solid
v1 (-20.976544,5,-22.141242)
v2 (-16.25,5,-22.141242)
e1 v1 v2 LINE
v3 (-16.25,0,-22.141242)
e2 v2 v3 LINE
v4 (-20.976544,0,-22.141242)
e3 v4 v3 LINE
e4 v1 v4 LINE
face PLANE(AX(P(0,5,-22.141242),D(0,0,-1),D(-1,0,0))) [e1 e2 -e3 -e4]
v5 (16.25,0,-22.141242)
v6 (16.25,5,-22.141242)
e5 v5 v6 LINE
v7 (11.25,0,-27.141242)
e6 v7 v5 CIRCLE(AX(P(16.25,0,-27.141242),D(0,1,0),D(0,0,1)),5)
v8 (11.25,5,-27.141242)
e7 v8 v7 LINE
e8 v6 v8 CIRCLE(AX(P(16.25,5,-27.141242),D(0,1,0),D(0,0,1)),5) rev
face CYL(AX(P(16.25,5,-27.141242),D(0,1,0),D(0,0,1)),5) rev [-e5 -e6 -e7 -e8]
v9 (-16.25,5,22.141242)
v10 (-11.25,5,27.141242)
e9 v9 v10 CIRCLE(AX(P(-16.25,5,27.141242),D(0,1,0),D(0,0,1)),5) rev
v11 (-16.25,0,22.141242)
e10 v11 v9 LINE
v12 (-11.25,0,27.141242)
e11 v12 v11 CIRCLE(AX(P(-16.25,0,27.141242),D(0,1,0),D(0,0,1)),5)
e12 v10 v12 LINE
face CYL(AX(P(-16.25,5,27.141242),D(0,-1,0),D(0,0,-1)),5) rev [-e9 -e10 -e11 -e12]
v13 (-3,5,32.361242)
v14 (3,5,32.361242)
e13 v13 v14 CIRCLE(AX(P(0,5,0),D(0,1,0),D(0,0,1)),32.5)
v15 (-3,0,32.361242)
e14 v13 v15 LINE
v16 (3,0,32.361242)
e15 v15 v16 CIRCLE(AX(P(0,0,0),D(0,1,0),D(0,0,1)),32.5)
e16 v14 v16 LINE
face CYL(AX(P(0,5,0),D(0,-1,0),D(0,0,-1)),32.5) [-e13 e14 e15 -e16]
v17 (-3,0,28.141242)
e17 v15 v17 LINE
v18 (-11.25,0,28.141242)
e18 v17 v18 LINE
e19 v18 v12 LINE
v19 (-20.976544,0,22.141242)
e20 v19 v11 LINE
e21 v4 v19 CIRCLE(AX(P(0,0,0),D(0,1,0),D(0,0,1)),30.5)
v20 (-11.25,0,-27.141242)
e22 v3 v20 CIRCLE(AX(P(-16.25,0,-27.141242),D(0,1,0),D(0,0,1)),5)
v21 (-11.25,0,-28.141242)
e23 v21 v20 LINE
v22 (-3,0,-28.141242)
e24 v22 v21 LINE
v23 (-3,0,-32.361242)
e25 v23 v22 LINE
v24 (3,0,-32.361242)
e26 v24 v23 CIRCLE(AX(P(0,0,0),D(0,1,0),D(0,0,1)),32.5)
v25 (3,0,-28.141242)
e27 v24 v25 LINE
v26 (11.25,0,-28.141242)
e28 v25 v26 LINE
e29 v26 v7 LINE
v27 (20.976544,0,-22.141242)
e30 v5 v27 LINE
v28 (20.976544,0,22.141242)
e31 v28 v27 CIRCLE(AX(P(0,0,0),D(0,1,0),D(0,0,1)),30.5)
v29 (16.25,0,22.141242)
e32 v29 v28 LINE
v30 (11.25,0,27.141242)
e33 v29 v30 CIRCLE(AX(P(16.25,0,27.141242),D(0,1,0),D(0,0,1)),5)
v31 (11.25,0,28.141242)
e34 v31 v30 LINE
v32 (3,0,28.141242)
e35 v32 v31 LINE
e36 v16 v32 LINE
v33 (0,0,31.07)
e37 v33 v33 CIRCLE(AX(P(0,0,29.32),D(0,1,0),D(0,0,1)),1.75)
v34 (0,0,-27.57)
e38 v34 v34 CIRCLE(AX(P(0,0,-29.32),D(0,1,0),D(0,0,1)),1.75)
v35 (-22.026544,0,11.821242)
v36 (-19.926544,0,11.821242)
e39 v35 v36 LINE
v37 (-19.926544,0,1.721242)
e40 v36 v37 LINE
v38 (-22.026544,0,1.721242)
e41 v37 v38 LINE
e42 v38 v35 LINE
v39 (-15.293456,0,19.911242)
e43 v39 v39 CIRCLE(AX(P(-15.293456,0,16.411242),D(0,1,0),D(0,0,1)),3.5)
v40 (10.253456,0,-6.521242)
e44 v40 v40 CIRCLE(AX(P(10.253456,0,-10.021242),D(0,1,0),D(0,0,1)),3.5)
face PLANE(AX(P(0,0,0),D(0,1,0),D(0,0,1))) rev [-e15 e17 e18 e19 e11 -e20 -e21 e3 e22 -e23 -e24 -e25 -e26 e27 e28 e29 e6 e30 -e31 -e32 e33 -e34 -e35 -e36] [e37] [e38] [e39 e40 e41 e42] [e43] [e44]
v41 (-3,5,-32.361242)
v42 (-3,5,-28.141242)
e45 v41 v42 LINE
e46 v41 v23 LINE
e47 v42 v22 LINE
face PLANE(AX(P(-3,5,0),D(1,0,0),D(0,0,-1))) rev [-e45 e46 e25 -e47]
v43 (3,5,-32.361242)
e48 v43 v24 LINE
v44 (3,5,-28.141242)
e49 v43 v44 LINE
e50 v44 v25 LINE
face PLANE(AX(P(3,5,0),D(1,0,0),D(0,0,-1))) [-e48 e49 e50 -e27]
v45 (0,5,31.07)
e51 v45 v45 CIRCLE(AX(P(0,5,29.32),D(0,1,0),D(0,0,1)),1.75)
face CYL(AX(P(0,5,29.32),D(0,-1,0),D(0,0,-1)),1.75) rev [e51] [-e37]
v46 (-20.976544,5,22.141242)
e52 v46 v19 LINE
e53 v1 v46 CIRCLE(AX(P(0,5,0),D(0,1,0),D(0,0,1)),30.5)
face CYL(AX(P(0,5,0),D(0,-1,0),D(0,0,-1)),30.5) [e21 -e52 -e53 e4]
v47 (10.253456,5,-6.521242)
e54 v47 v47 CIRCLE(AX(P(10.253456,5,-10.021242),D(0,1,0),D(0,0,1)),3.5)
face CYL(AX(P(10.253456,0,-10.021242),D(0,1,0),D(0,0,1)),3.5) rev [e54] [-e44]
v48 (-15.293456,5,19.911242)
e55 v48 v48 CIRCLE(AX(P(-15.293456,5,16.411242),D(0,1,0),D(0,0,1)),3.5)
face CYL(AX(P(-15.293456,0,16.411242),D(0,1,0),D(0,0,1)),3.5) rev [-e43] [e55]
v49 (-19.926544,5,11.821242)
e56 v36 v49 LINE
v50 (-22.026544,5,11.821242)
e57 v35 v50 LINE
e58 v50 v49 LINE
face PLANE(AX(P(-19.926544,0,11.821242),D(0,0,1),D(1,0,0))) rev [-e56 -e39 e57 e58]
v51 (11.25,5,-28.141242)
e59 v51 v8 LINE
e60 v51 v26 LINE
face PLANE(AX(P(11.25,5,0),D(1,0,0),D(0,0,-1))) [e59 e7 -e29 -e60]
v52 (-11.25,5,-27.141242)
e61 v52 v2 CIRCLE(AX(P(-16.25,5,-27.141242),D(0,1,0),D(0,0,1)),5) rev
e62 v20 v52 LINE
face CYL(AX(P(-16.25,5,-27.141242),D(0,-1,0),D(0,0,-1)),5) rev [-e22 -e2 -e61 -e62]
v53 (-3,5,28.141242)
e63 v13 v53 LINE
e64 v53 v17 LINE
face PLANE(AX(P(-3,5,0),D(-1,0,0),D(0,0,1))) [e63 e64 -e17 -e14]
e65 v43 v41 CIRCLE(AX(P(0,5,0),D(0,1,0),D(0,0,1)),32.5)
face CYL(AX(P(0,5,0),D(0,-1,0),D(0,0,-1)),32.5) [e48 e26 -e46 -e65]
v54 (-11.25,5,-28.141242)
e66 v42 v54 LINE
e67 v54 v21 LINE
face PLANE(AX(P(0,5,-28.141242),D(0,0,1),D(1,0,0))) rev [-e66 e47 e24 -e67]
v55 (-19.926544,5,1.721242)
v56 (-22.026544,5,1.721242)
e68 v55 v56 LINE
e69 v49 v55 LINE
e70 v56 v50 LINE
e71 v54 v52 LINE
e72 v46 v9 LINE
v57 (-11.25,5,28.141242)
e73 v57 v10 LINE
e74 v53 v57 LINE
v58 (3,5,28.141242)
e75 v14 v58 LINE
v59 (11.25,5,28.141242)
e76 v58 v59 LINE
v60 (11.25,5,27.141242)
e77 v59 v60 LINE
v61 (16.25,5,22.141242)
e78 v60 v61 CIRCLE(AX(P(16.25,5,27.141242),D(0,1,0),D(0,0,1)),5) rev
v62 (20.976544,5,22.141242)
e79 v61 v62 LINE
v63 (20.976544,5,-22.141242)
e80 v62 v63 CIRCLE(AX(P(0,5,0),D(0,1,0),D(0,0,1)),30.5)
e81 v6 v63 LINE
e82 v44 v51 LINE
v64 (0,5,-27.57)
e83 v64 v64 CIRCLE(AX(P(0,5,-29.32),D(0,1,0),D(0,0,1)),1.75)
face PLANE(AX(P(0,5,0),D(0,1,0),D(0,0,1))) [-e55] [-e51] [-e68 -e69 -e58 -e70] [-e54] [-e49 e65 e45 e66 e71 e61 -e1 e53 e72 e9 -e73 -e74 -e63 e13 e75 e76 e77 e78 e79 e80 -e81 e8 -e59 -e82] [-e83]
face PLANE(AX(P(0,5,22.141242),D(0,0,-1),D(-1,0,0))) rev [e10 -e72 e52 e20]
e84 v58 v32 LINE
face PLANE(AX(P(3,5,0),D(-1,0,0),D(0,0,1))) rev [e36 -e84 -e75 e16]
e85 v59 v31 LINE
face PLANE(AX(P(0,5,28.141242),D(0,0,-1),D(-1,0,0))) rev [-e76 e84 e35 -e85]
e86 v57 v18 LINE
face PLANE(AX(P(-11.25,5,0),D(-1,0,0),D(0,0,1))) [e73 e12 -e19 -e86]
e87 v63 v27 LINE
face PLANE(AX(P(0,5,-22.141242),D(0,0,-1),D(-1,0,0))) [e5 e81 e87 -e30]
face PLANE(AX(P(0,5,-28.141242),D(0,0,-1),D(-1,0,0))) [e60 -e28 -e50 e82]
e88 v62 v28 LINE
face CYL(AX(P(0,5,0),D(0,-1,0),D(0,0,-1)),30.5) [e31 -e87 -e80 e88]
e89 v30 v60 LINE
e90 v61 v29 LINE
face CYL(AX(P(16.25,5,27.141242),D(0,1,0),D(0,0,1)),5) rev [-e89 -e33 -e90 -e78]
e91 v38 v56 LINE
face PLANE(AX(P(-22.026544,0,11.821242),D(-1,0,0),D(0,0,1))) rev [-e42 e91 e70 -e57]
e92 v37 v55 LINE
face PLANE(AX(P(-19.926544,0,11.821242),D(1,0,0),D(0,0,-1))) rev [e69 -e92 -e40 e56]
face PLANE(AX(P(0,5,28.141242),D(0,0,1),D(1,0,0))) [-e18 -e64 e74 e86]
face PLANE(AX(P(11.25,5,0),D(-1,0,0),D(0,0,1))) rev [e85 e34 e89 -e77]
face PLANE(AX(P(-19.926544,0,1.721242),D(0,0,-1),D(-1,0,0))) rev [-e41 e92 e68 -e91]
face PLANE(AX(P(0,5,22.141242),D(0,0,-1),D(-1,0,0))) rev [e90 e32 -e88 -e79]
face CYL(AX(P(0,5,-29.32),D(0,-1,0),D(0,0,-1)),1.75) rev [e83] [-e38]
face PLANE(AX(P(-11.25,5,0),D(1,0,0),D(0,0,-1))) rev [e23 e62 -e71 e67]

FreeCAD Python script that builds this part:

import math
import FreeCAD as App
import Part
import Sketcher
from FreeCAD import Vector


def edges_at(feature, points):
    """Names of the edges that pass closest to the given points."""
    edges = feature.Shape.Edges
    near = lambda p: min(range(len(edges)), key=lambda i: edges[i].distToShape(Part.Vertex(*p))[0])
    return sorted({f"Edge{near(p) + 1}" for p in points})


def add_polygon(sketch, points):
    """Adds a closed chain of lines whose ends are joined by coincident constraints."""
    first, n = sketch.GeometryCount, len(points)
    for a, b in zip(points, points[1:] + points[:1]):
        sketch.addGeometry(Part.LineSegment(App.Vector(*a, 0), App.Vector(*b, 0)), False)
    for i in range(n):
        sketch.addConstraint(Sketcher.Constraint("Coincident", first + i, 2, first + (i + 1) % n, 1))

doc = App.newDocument("Part")
body = doc.addObject("PartDesign::Body", "Body")

sketch1 = doc.addObject("Sketcher::SketchObject", "Sketch")
body.addObject(sketch1)
sketch1.AttachmentSupport = (doc.XZ_Plane, [""])
sketch1.MapMode = "FlatFace"
sketch1.addGeometry([
    Part.LineSegment(Vector(3, -28.1, 0), Vector(3, -32.4, 0)),
    Part.ArcOfCircle(Part.Circle(Vector(0, 0, 0), Vector(0, 0, 1), 32.5), math.radians(-95.3), math.radians(-84.7)),
    Part.LineSegment(Vector(-3, -32.4, 0), Vector(-3, -28.1, 0)),
    Part.LineSegment(Vector(-3, -28.1, 0), Vector(-11.2, -28.1, 0)),
    Part.LineSegment(Vector(-11.2, -28.1, 0), Vector(-11.2, -22.1, 0)),
    Part.LineSegment(Vector(-11.2, -22.1, 0), Vector(-21, -22.1, 0)),
    Part.ArcOfCircle(Part.Circle(Vector(0, 0, 0), Vector(0, 0, 1), 30.5), math.radians(133), math.radians(227)),
    Part.LineSegment(Vector(-21, 22.1, 0), Vector(-11.2, 22.1, 0)),
    Part.LineSegment(Vector(-11.2, 22.1, 0), Vector(-11.2, 28.1, 0)),
    Part.LineSegment(Vector(-11.2, 28.1, 0), Vector(-3, 28.1, 0)),
    Part.LineSegment(Vector(-3, 28.1, 0), Vector(-3, 32.4, 0)),
    Part.ArcOfCircle(Part.Circle(Vector(0, 0, 0), Vector(0, 0, 1), 32.5), math.radians(84.7), math.radians(95.3)),
    Part.LineSegment(Vector(3, 32.4, 0), Vector(3, 28.1, 0)),
    Part.LineSegment(Vector(3, 28.1, 0), Vector(11.2, 28.1, 0)),
    Part.LineSegment(Vector(11.2, 28.1, 0), Vector(11.2, 22.1, 0)),
    Part.LineSegment(Vector(11.2, 22.1, 0), Vector(21, 22.1, 0)),
    Part.ArcOfCircle(Part.Circle(Vector(0, 0, 0), Vector(0, 0, 1), 30.5), math.radians(-47), math.radians(47)),
    Part.LineSegment(Vector(21, -22.1, 0), Vector(11.2, -22.1, 0)),
    Part.LineSegment(Vector(11.2, -22.1, 0), Vector(11.2, -28.1, 0)),
    Part.LineSegment(Vector(11.2, -28.1, 0), Vector(3, -28.1, 0)),
    Part.Circle(Vector(0, 29.3, 0), Vector(0, 0, 1), 1.8),
    Part.Circle(Vector(0, -29.3, 0), Vector(0, 0, 1), 1.8),
], False)
sketch1.addConstraint([
    Sketcher.Constraint("Coincident", 0, 2, 1, 2),
    Sketcher.Constraint("Coincident", 1, 1, 2, 1),
    Sketcher.Constraint("Coincident", 2, 2, 3, 1),
    Sketcher.Constraint("Coincident", 3, 2, 4, 1),
    Sketcher.Constraint("Coincident", 4, 2, 5, 1),
    Sketcher.Constraint("Coincident", 5, 2, 6, 2),
    Sketcher.Constraint("Coincident", 6, 1, 7, 1),
    Sketcher.Constraint("Coincident", 7, 2, 8, 1),
    Sketcher.Constraint("Coincident", 8, 2, 9, 1),
    Sketcher.Constraint("Coincident", 9, 2, 10, 1),
    Sketcher.Constraint("Coincident", 10, 2, 11, 2),
    Sketcher.Constraint("Coincident", 11, 1, 12, 1),
    Sketcher.Constraint("Coincident", 12, 2, 13, 1),
    Sketcher.Constraint("Coincident", 13, 2, 14, 1),
    Sketcher.Constraint("Coincident", 14, 2, 15, 1),
    Sketcher.Constraint("Coincident", 15, 2, 16, 2),
    Sketcher.Constraint("Coincident", 16, 1, 17, 1),
    Sketcher.Constraint("Coincident", 17, 2, 18, 1),
    Sketcher.Constraint("Coincident", 18, 2, 19, 1),
    Sketcher.Constraint("Coincident", 19, 2, 0, 1),
    Sketcher.Constraint("Vertical", 0),
    Sketcher.Constraint("Vertical", 2),
    Sketcher.Constraint("Horizontal", 3),
    Sketcher.Constraint("Vertical", 4),
    Sketcher.Constraint("Horizontal", 5),
    Sketcher.Constraint("Horizontal", 7),
    Sketcher.Constraint("Vertical", 8),
    Sketcher.Constraint("Horizontal", 9),
    Sketcher.Constraint("Vertical", 10),
    Sketcher.Constraint("Vertical", 12),
    Sketcher.Constraint("Horizontal", 13),
    Sketcher.Constraint("Vertical", 14),
    Sketcher.Constraint("Horizontal", 15),
    Sketcher.Constraint("Horizontal", 17),
    Sketcher.Constraint("Vertical", 18),
    Sketcher.Constraint("Horizontal", 19),
    Sketcher.Constraint("Coincident", 1, 3, -1, 1),
    Sketcher.Constraint("Coincident", 6, 3, -1, 1),
    Sketcher.Constraint("Coincident", 11, 3, -1, 1),
    Sketcher.Constraint("Coincident", 16, 3, -1, 1),
    Sketcher.Constraint("Equal", 1, 11),
    Sketcher.Constraint("Equal", 6, 16),
    Sketcher.Constraint("Equal", 20, 21),
    Sketcher.Constraint("Symmetric", 20, 3, 21, 3, -1, 1),
    Sketcher.Constraint("Symmetric", 2, 2, 12, 2, -1, 1),
    Sketcher.Constraint("Symmetric", 4, 2, 14, 2, -1, 1),
    Sketcher.Constraint("Symmetric", 7, 2, 17, 2, -1, 1),
    Sketcher.Constraint("Symmetric", 9, 2, 19, 2, -1, 1),
    Sketcher.Constraint("Symmetric", 9, 2, 12, 2, -2),
    Sketcher.Constraint("Symmetric", 7, 2, 14, 2, -2),
    Sketcher.Constraint("PointOnObject", 20, 3, -2),
    Sketcher.Constraint("Diameter", 20, 3.5),
    Sketcher.Constraint("Radius", 1, 32.5),
    Sketcher.Constraint("Radius", 6, 30.5),
    Sketcher.Constraint("DistanceY", 4, 1, 4, 2, 6.0),
    Sketcher.Constraint("DistanceX", -1, 1, 0, 2, 3.0),
    Sketcher.Constraint("DistanceX", 3, 2, 3, 1, 8.25),
    Sketcher.Constraint("DistanceY", 0, 2, 0, 1, 4.22),
    Sketcher.Constraint("DistanceY", -1, 1, 20, 3, 29.32),
])
pad1 = doc.addObject("PartDesign::Pad", "Pad")
body.addObject(pad1)
pad1.Profile = sketch1
pad1.Length = 5
pad1.Reversed = True
doc.recompute()

fillet = doc.addObject("PartDesign::Fillet", "Fillet")
body.addObject(fillet)
fillet.Base = (pad1, edges_at(pad1, [
    (-11.25, 2.5, -22.141),
    (11.25, 2.5, -22.141),
    (11.25, 2.5, 22.141),
    (-11.25, 2.5, 22.141),
]))
fillet.Radius = 5

sketch2 = doc.addObject("Sketcher::SketchObject", "Sketch001")
body.addObject(sketch2)
sketch2.AttachmentSupport = (doc.XZ_Plane, [""])
sketch2.MapMode = "FlatFace"
sketch2.AttachmentOffset = App.Placement(Vector(0, 0, -5), App.Rotation())
sketch2.addGeometry(Part.Circle(Vector(10.3, -10, 0), Vector(0, 0, 1), 3.5), False)
sketch2.addGeometry(Part.Circle(Vector(-15.3, 16.4, 0), Vector(0, 0, 1), 3.5), False)
add_polygon(sketch2, [(-22, 1.7), (-22, 11.8), (-19.9, 11.8), (-19.9, 1.7)])
sketch2.addConstraint([
    Sketcher.Constraint("Vertical", 2),
    Sketcher.Constraint("Horizontal", 3),
    Sketcher.Constraint("Vertical", 4),
    Sketcher.Constraint("Horizontal", 5),
    Sketcher.Constraint("Equal", 0, 1),
    Sketcher.Constraint("Diameter", 0, 7.0),
    Sketcher.Constraint("DistanceX", 3, 1, 3, 2, 2.1),
    Sketcher.Constraint("DistanceY", 2, 1, 2, 2, 10.1),
    Sketcher.Constraint("DistanceY", 2, 2, 1, 3, 4.59),
    Sketcher.Constraint("DistanceX", 2, 2, 0, 3, 32.28),
    Sketcher.Constraint("DistanceX", -1, 1, 0, 3, 10.253456),
    Sketcher.Constraint("DistanceY", 0, 3, -1, 1, 10.021242),
    Sketcher.Constraint("DistanceX", 1, 3, -1, 1, 15.293456),
    Sketcher.Constraint("DistanceY", -1, 1, 1, 3, 16.411242),
])
pocket1 = doc.addObject("PartDesign::Pocket", "Pocket")
body.addObject(pocket1)
pocket1.Profile = sketch2
pocket1.Type = "ThroughAll"
pocket1.Reversed = True

doc.recompute()
